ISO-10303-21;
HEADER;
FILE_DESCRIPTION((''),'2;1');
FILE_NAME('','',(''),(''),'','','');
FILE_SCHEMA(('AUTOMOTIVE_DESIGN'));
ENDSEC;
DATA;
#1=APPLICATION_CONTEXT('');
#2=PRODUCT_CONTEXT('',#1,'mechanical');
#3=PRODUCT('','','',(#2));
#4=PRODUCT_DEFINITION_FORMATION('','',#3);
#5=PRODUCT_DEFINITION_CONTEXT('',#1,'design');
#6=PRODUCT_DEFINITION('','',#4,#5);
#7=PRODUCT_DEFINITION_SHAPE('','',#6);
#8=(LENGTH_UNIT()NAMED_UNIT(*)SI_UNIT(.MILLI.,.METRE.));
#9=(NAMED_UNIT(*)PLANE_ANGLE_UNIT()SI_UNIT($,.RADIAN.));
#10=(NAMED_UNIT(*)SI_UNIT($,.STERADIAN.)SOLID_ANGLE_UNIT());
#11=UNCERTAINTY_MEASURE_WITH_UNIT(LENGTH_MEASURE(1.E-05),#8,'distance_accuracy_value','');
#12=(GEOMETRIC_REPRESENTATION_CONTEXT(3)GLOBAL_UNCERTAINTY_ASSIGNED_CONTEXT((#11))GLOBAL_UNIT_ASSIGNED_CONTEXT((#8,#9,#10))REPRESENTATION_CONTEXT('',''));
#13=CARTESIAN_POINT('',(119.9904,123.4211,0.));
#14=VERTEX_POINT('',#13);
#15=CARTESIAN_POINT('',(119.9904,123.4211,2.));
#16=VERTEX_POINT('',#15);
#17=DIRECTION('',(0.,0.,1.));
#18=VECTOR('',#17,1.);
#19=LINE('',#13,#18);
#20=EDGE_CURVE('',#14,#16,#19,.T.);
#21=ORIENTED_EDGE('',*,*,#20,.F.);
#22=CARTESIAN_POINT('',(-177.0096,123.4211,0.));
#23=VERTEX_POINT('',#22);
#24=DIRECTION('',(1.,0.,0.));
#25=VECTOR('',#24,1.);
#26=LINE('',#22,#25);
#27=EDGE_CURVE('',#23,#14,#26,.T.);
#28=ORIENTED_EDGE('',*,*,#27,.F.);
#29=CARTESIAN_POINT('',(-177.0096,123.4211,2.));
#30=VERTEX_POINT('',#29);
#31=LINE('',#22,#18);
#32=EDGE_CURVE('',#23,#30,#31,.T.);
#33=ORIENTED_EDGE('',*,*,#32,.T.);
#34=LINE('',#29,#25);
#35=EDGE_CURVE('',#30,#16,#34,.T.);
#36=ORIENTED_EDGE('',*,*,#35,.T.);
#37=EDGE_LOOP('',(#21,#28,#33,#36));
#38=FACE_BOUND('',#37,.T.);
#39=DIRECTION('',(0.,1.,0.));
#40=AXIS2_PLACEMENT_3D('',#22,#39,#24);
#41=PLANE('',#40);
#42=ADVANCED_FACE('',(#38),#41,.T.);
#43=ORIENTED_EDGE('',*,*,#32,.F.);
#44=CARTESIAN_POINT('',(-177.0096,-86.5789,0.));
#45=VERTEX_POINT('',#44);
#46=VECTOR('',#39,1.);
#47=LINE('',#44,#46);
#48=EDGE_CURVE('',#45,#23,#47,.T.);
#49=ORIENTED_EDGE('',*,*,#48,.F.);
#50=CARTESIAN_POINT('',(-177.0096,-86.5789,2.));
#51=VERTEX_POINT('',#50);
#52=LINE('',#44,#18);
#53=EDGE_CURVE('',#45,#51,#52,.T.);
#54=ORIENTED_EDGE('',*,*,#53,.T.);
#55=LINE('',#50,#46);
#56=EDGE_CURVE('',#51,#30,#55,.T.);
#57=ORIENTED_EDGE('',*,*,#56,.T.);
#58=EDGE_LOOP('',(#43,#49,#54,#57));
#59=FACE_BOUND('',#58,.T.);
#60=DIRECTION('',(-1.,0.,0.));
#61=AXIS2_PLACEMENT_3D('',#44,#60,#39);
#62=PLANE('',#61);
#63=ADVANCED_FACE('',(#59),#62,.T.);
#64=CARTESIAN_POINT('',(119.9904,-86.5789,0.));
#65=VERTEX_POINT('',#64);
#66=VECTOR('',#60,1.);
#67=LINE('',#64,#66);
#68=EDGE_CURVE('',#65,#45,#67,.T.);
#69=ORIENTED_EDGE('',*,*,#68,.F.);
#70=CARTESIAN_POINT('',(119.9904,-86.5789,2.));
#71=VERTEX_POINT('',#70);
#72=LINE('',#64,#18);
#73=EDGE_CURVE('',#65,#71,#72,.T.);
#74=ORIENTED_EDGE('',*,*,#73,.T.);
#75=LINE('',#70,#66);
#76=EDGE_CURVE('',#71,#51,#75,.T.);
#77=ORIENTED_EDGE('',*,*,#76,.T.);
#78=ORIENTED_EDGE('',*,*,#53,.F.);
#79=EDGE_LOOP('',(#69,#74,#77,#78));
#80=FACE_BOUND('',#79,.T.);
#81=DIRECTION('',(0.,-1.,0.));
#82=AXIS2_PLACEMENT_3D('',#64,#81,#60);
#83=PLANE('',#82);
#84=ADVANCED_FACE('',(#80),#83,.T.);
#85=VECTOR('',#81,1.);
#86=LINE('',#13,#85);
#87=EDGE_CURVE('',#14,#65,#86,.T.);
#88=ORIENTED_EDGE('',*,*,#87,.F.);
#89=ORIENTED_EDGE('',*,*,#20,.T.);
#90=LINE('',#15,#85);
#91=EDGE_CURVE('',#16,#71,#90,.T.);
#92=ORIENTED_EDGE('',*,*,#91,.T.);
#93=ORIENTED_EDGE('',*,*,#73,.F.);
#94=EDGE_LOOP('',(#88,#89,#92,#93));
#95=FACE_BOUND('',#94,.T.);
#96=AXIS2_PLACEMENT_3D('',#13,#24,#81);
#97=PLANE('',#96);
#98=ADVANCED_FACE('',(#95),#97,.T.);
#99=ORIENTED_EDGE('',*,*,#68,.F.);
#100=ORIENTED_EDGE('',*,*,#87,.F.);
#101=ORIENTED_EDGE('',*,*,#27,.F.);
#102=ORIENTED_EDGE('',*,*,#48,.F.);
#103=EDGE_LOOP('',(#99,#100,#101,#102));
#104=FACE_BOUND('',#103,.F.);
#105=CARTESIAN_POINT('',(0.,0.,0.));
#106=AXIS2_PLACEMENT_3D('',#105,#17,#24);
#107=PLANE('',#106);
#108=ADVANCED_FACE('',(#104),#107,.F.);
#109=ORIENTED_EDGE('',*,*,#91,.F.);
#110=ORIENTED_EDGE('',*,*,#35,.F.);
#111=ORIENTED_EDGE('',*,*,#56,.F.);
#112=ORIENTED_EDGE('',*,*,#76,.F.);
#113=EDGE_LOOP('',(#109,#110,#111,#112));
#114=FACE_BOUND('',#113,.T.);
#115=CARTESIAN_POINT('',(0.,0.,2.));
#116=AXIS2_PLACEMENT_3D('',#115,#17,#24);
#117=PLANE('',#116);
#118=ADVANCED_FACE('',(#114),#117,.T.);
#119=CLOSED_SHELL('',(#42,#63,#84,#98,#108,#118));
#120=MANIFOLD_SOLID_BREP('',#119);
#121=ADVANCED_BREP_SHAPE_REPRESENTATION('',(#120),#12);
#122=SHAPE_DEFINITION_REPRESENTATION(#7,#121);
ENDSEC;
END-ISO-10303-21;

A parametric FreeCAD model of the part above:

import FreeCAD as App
import Part
import Sketcher

V = App.Vector
Q = App.Units.Quantity


def add_polygon(sketch, points):
    """Adds a closed chain of lines whose ends are joined by coincident constraints."""
    first, n = sketch.GeometryCount, len(points)
    for a, b in zip(points, points[1:] + points[:1]):
        sketch.addGeometry(Part.LineSegment(App.Vector(*a, 0), App.Vector(*b, 0)), False)
    for i in range(n):
        sketch.addConstraint(Sketcher.Constraint("Coincident", first + i, 2, first + (i + 1) % n, 1))

doc = App.newDocument("Part")
body = doc.addObject("PartDesign::Body", "Body")

# Sketch on XY plane
sketch1 = doc.addObject("Sketcher::SketchObject", "Sketch")
body.addObject(sketch1)
sketch1.AttachmentSupport = (doc.XY_Plane, [""])
sketch1.MapMode = "FlatFace"
add_polygon(sketch1, [(120, 123), (-177, 123), (-177, -87), (120, -87)])  # lines 0-3
sketch1.addConstraint([
    Sketcher.Constraint("Horizontal", 0),
    Sketcher.Constraint("Vertical", 1),
    Sketcher.Constraint("Horizontal", 2),
    Sketcher.Constraint("Vertical", 3),
    Sketcher.Constraint("DistanceX", 0, 2, 0, 1, Q("297 mm")),
    Sketcher.Constraint("DistanceY", 1, 2, 1, 1, Q("210 mm")),
    Sketcher.Constraint("DistanceY", -1, 1, 0, 2, Q("123.421 mm")),
    Sketcher.Constraint("DistanceX", 0, 2, -1, 1, Q("177.0096 mm")),
])
pad1 = doc.addObject("PartDesign::Pad", "Pad")
body.addObject(pad1)
pad1.Profile = sketch1
pad1.Length = 2

doc.recompute()
